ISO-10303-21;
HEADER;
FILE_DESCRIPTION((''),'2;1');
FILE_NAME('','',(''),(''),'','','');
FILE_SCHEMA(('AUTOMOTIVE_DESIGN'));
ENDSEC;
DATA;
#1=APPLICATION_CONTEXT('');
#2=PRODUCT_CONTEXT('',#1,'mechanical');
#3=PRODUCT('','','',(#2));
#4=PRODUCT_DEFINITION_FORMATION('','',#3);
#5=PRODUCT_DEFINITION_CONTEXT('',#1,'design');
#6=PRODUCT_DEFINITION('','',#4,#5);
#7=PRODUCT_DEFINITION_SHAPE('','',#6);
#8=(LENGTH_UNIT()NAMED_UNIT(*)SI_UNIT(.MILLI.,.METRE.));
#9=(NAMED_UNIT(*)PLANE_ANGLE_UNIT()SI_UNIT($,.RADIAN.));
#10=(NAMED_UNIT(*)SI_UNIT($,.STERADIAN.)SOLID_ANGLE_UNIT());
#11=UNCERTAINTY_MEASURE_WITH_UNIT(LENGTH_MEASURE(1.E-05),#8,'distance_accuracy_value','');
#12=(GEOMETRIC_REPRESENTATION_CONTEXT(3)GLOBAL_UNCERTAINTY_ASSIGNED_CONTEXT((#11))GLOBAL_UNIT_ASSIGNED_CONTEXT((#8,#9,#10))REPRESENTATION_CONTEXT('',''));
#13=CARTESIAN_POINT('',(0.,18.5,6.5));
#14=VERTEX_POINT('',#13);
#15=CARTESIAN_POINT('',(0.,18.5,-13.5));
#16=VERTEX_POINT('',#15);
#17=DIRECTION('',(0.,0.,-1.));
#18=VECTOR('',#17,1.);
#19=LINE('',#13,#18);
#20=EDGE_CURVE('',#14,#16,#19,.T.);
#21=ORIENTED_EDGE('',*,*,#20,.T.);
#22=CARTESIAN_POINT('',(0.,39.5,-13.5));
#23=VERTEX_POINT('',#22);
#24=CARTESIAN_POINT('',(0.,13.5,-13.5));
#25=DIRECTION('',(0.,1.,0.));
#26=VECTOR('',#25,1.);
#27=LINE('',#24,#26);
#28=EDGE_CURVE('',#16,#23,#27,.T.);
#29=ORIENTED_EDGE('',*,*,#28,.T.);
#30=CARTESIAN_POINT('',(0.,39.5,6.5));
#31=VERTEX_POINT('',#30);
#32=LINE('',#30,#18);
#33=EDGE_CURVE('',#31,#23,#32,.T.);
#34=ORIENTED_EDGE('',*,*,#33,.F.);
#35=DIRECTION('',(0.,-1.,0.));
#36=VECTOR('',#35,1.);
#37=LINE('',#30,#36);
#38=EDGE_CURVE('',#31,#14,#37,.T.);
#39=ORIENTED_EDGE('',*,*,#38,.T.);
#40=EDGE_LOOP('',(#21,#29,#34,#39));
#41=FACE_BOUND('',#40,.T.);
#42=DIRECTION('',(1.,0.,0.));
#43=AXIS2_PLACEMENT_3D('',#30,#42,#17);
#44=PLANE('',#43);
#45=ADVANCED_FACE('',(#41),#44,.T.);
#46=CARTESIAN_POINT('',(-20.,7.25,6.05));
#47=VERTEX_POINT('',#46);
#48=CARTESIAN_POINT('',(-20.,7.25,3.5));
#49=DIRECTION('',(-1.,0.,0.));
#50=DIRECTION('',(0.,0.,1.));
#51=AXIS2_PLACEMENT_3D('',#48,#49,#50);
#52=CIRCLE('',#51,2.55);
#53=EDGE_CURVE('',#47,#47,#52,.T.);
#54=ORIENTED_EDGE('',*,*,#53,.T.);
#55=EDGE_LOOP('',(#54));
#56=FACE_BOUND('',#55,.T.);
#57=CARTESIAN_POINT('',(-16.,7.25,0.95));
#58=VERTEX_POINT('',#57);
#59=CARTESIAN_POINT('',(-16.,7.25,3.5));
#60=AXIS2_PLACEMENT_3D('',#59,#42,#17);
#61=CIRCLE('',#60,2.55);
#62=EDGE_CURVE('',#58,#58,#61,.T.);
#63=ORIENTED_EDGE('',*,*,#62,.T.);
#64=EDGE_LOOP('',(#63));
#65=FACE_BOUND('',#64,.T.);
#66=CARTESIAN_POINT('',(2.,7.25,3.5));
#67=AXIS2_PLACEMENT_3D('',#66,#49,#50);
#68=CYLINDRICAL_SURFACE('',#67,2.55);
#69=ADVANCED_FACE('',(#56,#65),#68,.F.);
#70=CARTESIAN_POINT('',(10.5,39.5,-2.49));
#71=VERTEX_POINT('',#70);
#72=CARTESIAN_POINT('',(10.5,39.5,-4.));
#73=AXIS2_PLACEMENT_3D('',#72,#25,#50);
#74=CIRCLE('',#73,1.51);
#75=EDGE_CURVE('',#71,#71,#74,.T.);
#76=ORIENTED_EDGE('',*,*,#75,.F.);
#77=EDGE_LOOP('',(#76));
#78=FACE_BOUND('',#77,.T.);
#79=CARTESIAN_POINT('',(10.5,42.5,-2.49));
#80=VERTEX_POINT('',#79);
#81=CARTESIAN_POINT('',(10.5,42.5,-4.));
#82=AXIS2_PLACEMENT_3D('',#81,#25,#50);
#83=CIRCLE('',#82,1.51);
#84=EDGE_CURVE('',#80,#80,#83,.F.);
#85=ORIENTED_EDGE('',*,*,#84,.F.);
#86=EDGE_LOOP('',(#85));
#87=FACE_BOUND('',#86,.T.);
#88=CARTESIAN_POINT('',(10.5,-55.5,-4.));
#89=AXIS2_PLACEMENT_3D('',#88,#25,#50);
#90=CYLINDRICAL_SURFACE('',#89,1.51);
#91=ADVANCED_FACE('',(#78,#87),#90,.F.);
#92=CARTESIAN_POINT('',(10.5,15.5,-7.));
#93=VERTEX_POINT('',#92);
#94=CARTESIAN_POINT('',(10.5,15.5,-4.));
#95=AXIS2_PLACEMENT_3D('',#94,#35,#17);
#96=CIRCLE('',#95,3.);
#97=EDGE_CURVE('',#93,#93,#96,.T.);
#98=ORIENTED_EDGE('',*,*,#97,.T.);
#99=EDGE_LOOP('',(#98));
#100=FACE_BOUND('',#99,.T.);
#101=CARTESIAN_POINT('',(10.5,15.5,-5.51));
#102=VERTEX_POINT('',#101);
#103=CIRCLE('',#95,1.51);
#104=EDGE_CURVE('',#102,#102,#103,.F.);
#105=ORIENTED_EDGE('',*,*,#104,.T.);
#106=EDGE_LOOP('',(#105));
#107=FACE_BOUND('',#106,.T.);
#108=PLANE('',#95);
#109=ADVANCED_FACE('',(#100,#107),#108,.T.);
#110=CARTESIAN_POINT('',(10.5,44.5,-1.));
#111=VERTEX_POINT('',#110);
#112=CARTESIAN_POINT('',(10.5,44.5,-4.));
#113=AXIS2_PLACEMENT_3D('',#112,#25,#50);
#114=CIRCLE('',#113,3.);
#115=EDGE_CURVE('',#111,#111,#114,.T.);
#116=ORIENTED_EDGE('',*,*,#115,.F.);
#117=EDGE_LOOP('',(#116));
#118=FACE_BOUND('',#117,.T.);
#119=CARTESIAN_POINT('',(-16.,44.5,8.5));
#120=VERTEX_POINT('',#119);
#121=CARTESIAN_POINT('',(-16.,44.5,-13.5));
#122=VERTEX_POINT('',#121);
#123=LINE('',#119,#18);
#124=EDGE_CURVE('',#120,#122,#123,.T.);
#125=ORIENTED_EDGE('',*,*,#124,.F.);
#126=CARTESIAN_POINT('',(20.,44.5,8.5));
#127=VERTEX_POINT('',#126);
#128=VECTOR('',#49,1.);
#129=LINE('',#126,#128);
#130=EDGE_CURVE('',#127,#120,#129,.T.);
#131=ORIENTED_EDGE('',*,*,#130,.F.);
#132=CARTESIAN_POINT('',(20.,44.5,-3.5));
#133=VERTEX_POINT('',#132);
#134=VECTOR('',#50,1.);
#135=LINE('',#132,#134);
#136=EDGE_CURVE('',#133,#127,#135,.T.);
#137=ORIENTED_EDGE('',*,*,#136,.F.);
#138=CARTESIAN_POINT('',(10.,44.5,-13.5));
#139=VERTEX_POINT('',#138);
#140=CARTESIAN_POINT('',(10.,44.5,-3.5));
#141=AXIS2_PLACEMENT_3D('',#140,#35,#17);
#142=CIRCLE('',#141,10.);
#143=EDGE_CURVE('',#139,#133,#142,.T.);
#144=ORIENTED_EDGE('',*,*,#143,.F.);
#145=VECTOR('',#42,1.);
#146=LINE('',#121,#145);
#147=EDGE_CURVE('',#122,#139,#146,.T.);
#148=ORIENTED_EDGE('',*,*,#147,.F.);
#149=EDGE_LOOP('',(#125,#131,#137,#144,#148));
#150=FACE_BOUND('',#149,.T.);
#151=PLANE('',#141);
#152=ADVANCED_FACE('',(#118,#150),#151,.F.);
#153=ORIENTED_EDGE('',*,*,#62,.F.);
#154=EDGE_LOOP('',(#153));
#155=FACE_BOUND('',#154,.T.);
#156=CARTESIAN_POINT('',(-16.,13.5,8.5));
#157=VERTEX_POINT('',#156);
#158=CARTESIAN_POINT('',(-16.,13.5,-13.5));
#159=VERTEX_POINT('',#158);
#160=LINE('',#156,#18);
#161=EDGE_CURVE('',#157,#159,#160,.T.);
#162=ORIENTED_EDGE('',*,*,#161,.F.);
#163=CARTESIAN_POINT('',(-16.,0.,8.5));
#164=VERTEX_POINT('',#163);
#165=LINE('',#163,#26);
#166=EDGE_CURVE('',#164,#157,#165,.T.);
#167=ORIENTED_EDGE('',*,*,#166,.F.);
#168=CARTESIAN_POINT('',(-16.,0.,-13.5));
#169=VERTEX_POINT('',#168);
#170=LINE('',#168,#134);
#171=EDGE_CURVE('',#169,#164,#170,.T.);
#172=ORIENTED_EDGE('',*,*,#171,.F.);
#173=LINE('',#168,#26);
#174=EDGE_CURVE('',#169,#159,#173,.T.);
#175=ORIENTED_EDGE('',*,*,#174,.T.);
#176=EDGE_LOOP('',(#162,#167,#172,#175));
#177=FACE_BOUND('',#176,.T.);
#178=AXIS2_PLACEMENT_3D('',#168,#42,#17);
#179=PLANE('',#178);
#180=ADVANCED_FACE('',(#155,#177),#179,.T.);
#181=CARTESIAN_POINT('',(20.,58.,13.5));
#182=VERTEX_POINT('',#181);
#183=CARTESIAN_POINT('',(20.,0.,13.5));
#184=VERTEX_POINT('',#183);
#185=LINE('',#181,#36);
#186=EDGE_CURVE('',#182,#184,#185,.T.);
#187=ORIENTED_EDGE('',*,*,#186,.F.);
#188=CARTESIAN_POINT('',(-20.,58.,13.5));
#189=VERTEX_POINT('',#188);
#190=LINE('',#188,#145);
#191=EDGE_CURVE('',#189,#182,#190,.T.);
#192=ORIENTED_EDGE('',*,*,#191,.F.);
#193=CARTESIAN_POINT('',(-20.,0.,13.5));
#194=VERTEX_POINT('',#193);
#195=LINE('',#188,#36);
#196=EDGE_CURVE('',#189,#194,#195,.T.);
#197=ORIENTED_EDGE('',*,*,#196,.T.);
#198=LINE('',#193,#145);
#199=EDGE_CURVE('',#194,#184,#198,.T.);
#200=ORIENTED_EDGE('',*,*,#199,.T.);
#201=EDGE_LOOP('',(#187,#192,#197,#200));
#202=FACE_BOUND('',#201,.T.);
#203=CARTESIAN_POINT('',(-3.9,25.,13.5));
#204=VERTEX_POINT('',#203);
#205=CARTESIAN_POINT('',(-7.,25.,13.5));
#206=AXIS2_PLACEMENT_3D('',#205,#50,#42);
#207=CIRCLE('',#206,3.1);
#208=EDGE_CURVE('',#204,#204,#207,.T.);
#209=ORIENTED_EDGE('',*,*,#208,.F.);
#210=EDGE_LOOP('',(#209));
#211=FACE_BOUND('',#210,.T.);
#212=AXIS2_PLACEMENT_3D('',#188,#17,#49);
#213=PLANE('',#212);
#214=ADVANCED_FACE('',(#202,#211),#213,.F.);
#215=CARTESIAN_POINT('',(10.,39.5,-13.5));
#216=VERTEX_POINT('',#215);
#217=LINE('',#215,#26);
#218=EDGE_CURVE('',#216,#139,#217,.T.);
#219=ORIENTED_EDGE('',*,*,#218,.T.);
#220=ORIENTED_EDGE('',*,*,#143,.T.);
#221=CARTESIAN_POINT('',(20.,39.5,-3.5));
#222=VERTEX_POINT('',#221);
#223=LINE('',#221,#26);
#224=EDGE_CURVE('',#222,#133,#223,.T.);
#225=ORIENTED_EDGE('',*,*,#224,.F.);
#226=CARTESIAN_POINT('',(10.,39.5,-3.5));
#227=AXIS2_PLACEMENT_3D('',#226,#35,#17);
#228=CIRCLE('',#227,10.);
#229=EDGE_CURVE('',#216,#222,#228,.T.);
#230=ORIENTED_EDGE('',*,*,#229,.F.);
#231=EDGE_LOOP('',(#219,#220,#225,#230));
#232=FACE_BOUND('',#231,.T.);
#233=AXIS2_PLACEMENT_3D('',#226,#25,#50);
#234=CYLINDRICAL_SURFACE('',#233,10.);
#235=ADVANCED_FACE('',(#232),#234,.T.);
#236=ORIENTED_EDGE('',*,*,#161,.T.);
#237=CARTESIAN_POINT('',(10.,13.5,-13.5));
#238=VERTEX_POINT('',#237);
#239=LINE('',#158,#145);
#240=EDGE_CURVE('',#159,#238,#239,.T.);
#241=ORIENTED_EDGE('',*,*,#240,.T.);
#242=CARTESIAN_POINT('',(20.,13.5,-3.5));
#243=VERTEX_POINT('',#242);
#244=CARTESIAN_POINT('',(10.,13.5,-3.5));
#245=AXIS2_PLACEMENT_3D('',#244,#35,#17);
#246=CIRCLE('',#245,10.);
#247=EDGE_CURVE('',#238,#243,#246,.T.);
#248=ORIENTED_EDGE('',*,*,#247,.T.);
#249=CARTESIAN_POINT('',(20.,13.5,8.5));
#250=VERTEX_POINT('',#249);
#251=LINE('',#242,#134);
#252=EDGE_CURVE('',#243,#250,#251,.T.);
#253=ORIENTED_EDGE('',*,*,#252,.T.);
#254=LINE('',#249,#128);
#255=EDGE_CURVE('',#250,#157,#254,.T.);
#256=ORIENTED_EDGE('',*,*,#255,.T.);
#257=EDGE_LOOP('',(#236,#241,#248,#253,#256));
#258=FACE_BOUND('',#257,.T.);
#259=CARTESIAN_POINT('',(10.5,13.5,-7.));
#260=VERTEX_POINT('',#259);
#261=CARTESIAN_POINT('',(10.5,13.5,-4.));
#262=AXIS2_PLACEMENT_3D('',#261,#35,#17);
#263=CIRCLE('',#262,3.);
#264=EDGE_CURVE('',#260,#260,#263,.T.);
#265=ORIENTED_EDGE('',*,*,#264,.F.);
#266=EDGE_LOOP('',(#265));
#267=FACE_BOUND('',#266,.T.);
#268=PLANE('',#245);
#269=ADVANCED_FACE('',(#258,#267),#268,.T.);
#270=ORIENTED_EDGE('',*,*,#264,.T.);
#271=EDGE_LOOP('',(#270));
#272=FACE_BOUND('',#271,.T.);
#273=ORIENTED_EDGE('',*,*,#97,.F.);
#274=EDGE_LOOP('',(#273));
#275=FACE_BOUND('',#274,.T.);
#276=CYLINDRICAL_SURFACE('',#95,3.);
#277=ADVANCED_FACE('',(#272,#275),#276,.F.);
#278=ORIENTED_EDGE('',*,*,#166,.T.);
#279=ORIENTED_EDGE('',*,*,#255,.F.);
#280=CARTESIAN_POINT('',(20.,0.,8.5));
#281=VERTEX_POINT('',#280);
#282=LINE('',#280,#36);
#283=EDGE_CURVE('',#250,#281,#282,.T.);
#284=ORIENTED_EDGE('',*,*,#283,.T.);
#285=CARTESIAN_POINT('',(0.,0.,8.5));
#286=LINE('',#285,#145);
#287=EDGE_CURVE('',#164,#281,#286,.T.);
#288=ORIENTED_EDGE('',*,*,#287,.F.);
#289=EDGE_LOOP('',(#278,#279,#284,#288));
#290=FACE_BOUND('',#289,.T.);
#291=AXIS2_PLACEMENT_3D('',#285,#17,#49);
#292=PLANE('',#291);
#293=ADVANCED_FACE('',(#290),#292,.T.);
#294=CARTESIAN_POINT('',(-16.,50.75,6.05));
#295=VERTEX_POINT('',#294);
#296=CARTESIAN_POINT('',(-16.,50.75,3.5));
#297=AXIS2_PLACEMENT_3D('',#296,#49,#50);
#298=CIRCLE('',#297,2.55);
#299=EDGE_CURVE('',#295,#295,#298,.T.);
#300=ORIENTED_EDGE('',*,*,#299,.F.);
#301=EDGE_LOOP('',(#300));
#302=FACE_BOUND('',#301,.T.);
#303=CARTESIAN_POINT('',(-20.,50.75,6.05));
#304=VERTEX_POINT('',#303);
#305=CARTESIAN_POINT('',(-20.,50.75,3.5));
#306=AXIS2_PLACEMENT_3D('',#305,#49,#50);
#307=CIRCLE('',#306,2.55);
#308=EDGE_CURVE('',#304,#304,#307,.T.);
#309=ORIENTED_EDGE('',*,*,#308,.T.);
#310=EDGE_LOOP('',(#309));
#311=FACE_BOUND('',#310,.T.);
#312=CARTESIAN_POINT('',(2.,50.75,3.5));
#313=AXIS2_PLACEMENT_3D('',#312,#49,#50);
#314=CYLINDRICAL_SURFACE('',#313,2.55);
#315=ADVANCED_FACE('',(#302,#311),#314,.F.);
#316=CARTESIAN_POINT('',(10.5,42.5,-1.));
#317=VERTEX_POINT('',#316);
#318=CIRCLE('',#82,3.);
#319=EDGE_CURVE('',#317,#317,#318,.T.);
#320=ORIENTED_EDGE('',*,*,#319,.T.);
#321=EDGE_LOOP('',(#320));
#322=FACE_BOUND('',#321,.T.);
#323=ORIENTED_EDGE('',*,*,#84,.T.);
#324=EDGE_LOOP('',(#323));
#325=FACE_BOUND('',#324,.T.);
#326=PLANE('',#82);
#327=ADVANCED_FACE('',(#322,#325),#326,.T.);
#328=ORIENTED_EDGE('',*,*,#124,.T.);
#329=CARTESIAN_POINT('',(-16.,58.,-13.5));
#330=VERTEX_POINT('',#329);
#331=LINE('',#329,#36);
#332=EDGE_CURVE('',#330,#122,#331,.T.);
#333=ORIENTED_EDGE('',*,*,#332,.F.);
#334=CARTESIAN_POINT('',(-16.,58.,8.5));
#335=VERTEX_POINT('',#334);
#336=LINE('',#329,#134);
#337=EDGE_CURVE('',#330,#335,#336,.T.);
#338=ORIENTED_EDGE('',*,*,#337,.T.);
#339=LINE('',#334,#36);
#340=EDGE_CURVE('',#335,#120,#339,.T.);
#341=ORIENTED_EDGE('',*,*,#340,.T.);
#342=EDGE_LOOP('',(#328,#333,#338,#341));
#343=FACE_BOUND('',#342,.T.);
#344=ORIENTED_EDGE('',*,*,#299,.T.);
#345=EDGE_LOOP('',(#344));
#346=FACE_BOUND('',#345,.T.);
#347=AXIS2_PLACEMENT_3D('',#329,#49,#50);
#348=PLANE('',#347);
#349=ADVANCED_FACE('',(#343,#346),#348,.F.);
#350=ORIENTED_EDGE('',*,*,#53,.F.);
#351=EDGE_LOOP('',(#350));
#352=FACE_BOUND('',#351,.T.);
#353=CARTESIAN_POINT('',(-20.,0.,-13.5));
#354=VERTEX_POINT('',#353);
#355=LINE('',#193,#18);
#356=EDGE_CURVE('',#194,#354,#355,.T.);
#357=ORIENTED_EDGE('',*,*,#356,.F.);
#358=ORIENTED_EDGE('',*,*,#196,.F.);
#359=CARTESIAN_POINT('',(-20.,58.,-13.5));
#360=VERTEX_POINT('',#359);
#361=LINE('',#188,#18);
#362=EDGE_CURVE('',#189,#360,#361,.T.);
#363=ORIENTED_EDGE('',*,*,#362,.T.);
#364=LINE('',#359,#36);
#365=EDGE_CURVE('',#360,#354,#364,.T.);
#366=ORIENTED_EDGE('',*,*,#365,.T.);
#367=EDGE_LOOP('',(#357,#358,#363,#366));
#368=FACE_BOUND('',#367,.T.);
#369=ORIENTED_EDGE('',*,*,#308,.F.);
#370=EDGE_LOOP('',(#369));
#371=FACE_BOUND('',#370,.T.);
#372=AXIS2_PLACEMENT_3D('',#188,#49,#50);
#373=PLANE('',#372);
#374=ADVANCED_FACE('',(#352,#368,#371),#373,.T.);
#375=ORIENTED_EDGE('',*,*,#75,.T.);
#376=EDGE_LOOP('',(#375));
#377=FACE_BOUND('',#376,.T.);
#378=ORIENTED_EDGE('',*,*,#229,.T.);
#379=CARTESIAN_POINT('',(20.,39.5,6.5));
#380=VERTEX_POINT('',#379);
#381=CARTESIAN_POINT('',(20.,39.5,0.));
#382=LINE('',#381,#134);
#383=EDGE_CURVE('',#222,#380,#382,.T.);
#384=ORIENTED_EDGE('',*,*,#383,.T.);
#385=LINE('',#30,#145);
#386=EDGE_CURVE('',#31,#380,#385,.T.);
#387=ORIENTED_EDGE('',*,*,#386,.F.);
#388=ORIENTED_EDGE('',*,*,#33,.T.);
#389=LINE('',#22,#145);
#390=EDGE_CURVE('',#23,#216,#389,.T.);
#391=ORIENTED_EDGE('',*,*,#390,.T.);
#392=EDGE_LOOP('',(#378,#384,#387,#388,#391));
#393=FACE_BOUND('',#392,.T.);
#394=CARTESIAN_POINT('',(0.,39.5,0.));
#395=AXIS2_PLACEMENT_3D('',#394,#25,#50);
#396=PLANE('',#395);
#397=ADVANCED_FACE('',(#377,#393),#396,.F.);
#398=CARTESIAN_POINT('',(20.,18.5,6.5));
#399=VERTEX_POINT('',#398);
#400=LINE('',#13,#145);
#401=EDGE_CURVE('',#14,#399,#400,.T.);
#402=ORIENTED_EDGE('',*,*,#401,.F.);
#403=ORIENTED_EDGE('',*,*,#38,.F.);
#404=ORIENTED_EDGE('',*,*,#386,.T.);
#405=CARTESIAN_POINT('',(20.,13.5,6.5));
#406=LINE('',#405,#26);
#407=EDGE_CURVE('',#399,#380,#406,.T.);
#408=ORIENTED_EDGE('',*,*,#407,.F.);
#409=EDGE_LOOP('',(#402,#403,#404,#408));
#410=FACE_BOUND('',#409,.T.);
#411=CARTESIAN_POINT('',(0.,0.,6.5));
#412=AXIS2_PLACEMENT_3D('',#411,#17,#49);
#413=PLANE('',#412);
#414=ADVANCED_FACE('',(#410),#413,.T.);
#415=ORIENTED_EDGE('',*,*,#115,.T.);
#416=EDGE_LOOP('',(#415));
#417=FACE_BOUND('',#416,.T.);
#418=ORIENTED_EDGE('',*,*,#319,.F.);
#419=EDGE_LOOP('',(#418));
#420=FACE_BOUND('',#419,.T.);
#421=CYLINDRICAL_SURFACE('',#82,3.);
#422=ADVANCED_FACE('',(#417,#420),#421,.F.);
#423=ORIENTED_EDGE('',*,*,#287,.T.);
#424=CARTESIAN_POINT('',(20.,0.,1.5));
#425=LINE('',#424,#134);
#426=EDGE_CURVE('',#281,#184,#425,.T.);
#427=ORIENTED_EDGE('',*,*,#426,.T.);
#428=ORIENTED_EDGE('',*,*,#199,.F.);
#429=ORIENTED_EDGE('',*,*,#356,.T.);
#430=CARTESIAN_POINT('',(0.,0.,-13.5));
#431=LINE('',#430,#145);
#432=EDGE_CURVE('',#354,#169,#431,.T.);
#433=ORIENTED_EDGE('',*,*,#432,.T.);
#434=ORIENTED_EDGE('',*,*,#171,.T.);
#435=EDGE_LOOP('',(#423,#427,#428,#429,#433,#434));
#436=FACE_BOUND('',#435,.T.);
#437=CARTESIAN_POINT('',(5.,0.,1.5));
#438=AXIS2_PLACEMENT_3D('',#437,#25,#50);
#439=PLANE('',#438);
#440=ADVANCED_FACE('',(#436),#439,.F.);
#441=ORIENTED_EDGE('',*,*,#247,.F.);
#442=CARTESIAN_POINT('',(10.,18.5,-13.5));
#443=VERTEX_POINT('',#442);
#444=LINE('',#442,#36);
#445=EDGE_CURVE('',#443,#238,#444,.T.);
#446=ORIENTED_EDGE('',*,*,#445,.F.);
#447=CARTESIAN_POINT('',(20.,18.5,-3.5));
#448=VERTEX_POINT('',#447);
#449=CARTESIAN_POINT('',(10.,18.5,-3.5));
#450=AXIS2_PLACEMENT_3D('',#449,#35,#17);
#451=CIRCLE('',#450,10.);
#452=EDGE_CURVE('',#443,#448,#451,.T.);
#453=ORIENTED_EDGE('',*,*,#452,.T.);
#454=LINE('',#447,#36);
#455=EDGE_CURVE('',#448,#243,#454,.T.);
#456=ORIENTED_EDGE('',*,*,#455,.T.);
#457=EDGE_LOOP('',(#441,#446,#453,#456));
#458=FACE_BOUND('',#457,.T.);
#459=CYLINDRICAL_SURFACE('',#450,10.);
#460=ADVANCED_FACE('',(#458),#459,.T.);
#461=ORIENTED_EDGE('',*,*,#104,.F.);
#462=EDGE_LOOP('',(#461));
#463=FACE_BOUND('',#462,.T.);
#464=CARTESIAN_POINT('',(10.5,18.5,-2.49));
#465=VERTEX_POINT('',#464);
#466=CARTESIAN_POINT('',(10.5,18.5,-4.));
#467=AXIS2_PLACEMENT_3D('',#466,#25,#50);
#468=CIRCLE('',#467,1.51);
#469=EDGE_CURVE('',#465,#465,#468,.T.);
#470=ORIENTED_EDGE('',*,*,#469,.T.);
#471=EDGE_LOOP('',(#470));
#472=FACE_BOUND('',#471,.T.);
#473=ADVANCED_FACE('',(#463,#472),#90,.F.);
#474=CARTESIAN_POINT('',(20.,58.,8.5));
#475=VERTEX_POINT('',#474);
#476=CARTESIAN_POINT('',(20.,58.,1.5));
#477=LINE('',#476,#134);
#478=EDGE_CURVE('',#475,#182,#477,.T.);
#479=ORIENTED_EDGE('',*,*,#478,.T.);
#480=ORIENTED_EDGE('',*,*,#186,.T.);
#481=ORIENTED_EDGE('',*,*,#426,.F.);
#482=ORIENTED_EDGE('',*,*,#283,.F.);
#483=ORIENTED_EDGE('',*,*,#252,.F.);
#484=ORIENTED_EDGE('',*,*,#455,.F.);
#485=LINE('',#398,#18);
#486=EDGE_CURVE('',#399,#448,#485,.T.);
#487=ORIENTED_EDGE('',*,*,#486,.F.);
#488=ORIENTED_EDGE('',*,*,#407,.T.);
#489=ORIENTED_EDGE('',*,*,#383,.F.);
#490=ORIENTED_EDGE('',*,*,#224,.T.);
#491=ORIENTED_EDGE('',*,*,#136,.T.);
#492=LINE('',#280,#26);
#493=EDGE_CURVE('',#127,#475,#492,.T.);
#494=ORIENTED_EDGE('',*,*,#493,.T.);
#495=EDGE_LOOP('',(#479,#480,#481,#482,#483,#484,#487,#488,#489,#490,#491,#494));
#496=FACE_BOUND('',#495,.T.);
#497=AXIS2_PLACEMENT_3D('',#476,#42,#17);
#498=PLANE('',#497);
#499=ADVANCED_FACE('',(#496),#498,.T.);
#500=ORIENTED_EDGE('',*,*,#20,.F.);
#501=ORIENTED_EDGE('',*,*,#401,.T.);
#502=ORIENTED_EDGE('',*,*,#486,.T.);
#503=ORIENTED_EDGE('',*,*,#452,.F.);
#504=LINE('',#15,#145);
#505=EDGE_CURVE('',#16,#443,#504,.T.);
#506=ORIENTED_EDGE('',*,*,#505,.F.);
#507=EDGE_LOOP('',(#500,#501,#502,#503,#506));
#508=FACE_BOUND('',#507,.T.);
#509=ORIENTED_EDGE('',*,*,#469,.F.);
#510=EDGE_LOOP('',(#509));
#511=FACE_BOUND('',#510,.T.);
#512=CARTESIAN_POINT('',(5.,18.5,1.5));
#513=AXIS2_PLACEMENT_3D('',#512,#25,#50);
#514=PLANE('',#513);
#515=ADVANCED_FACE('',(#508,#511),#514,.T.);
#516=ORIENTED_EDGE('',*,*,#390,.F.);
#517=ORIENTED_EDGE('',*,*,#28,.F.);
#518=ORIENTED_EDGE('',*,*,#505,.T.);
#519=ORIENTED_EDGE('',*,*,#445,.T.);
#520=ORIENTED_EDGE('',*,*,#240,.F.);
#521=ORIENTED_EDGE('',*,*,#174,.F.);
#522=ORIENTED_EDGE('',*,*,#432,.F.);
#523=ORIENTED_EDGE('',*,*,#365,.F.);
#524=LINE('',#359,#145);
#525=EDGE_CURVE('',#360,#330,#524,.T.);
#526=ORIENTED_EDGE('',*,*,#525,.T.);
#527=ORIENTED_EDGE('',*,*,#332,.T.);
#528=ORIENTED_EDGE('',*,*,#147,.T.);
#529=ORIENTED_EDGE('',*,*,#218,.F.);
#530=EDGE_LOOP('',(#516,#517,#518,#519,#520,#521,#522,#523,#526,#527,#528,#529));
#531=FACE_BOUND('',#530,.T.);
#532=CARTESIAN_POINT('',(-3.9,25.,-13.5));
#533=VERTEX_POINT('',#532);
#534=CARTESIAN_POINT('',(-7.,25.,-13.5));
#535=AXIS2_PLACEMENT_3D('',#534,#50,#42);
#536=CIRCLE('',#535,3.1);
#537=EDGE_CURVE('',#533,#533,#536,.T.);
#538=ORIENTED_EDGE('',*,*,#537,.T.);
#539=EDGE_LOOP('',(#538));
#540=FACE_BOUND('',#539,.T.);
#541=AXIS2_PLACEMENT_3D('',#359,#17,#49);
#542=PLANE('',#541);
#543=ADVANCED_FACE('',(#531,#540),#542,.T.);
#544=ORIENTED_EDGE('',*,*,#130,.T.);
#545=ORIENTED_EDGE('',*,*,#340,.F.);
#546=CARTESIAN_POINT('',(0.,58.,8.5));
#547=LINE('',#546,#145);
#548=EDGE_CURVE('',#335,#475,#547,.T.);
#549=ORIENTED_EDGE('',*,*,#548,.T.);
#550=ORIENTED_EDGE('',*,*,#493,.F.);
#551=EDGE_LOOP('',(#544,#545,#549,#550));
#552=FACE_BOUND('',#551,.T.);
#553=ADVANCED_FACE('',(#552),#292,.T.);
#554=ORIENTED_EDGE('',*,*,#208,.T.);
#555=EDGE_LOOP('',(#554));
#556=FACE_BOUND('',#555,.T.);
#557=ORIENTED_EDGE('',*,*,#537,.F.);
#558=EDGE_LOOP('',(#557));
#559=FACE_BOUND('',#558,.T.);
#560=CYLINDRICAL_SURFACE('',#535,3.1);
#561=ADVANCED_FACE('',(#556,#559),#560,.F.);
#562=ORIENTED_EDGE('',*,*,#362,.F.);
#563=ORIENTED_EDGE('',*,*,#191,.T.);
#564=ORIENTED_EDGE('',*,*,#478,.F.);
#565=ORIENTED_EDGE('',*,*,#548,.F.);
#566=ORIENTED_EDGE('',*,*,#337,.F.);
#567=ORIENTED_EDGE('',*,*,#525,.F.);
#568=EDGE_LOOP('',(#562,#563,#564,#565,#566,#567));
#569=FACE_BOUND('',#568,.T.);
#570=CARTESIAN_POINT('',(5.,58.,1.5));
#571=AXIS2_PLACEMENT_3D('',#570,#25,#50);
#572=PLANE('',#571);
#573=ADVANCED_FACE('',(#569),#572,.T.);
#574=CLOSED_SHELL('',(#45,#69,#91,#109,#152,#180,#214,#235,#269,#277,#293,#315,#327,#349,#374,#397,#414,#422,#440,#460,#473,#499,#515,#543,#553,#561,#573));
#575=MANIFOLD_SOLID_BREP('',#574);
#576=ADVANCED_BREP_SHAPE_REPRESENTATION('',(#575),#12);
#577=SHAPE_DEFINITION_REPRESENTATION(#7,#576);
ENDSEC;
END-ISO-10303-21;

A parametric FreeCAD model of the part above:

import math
import FreeCAD as App
import Part
import Sketcher

V = App.Vector

doc = App.newDocument("Part")
body = doc.addObject("PartDesign::Body", "Body")

# Sketch on XZ plane
sketch1 = body.newObject("Sketcher::SketchObject", "Sketch")
sketch1.AttachmentSupport = (doc.getObject("XZ_Plane"), [""])
sketch1.MapMode = "FlatFace"
sketch1.addGeometry([
    Part.LineSegment(V(5, -14, 0), V(-20, -14, 0)),  # 0
    Part.LineSegment(V(-20, -14, 0), V(-20, 14, 0)),  # 1
    Part.LineSegment(V(-20, 14, 0), V(20, 14, 0)),  # 2
    Part.LineSegment(V(20, 14, 0), V(20, 2, 0)),  # 3
    Part.ArcOfCircle(Part.Circle(V(5, 1, 0), V(0, 0, 1), 15), math.radians(-90), math.radians(0)),  # 4
], False)
sketch1.addConstraint([
    Sketcher.Constraint("Coincident", 0, 2, 1, 1),
    Sketcher.Constraint("Coincident", 1, 2, 2, 1),
    Sketcher.Constraint("Coincident", 2, 2, 3, 1),
    Sketcher.Constraint("Tangent", 3, 2, 4, 2),
    Sketcher.Constraint("Tangent", 4, 1, 0, 1),
    Sketcher.Constraint("Horizontal", 0),
    Sketcher.Constraint("Vertical", 1),
    Sketcher.Constraint("Horizontal", 2),
    Sketcher.Constraint("Vertical", 3),
    Sketcher.Constraint("Symmetric", 0, 2, 2, 2, -1, 1),
    Sketcher.Constraint("Radius", 4, 15.0),
    Sketcher.Constraint("DistanceX", 0, 2, 0, 1, 25.0),
    Sketcher.Constraint("DistanceY", 1, 1, 1, 2, 27.0),
])
pad1 = body.newObject("PartDesign::Pad", "Pad")
pad1.Profile = sketch1
pad1.Length = 58
pad1.Reversed = True

# Sketch on XY plane
sketch2 = body.newObject("Sketcher::SketchObject", "Sketch001")
sketch2.AttachmentSupport = (doc.getObject("XY_Plane"), [""])
sketch2.MapMode = "FlatFace"
sketch2.AttachmentOffset = App.Placement(V(0, 0, 13.5), App.Rotation())
sketch2.addGeometry(Part.Circle(V(-7, 33, 0), V(0, 0, 1), 3), False)
sketch2.addConstraint([
    Sketcher.Constraint("Diameter", 0, 6.0),
    Sketcher.Constraint("DistanceX", 0, 3, -1, 1, 7.0),
    Sketcher.Constraint("DistanceY", -1, 1, 0, 3, 33.0),
])
pocket1 = body.newObject("PartDesign::Pocket", "Pocket")
pocket1.Profile = sketch2
pocket1.Length = 58

# Sketch on XY plane
sketch3 = body.newObject("Sketcher::SketchObject", "Sketch002")
sketch3.AttachmentSupport = (doc.getObject("XY_Plane"), [""])
sketch3.MapMode = "FlatFace"
sketch3.AttachmentOffset = App.Placement(V(0, 0, -13.5), App.Rotation())
sketch3.addGeometry([
    Part.LineSegment(V(20, 58, 0), V(20, 44, 0)),  # 0
    Part.LineSegment(V(20, 44, 0), V(-20, 44, 0)),  # 1
    Part.LineSegment(V(-20, 44, 0), V(-20, 58, 0)),  # 2
    Part.LineSegment(V(-20, 58, 0), V(20, 58, 0)),  # 3
    Part.LineSegment(V(20, 14, 0), V(20, 0, 0)),  # 4
    Part.LineSegment(V(20, 0, 0), V(-20, 0, 0)),  # 5
    Part.LineSegment(V(-20, 0, 0), V(-20, 14, 0)),  # 6
    Part.LineSegment(V(-20, 14, 0), V(20, 14, 0)),  # 7
], False)
sketch3.addConstraint([
    Sketcher.Constraint("Coincident", 0, 2, 1, 1),
    Sketcher.Constraint("Coincident", 1, 2, 2, 1),
    Sketcher.Constraint("Coincident", 2, 2, 3, 1),
    Sketcher.Constraint("Coincident", 3, 2, 0, 1),
    Sketcher.Constraint("Coincident", 4, 2, 5, 1),
    Sketcher.Constraint("Coincident", 5, 2, 6, 1),
    Sketcher.Constraint("Coincident", 6, 2, 7, 1),
    Sketcher.Constraint("Coincident", 7, 2, 4, 1),
    Sketcher.Constraint("Vertical", 0),
    Sketcher.Constraint("Horizontal", 1),
    Sketcher.Constraint("Vertical", 2),
    Sketcher.Constraint("Horizontal", 3),
    Sketcher.Constraint("Vertical", 4),
    Sketcher.Constraint("Horizontal", 5),
    Sketcher.Constraint("Vertical", 6),
    Sketcher.Constraint("Horizontal", 7),
    Sketcher.Constraint("Symmetric", 4, 2, 5, 2, -1, 1),
    Sketcher.Constraint("Vertical", 3, 2, 4, 2),
    Sketcher.Constraint("Vertical", 2, 2, 5, 2),
    Sketcher.Constraint("Equal", 2, 4),
    Sketcher.Constraint("DistanceX", 1, 2, 1, 1, 40.0),
    Sketcher.Constraint("DistanceY", 0, 2, 0, 1, 14.5),
    Sketcher.Constraint("DistanceY", -1, 1, 2, 2, 58.0),
])
pocket2 = body.newObject("PartDesign::Pocket", "Pocket001")
pocket2.Profile = sketch3
pocket2.Length = 22
pocket2.Reversed = True

# Sketch on XY plane
sketch4 = body.newObject("Sketcher::SketchObject", "Sketch003")
sketch4.AttachmentSupport = (doc.getObject("XY_Plane"), [""])
sketch4.MapMode = "FlatFace"
sketch4.AttachmentOffset = App.Placement(V(0, 0, 8.5), App.Rotation())
sketch4.addGeometry([
    Part.LineSegment(V(-16, 14.5, 0), V(-16, 0, 0)),  # 0
    Part.LineSegment(V(-16, 0, 0), V(-20, 0, 0)),  # 1
    Part.LineSegment(V(-20, 0, 0), V(-20, 14.5, 0)),  # 2
    Part.LineSegment(V(-20, 14.5, 0), V(-16, 14.5, 0)),  # 3
    Part.LineSegment(V(-16, 58, 0), V(-16, 43.5, 0)),  # 4
    Part.LineSegment(V(-16, 43.5, 0), V(-20, 43.5, 0)),  # 5
    Part.LineSegment(V(-20, 43.5, 0), V(-20, 58, 0)),  # 6
    Part.LineSegment(V(-20, 58, 0), V(-16, 58, 0)),  # 7
], False)
sketch4.addConstraint([
    Sketcher.Constraint("Coincident", 0, 2, 1, 1),
    Sketcher.Constraint("Coincident", 1, 2, 2, 1),
    Sketcher.Constraint("Coincident", 2, 2, 3, 1),
    Sketcher.Constraint("Coincident", 3, 2, 0, 1),
    Sketcher.Constraint("Coincident", 4, 2, 5, 1),
    Sketcher.Constraint("Coincident", 5, 2, 6, 1),
    Sketcher.Constraint("Coincident", 6, 2, 7, 1),
    Sketcher.Constraint("Coincident", 7, 2, 4, 1),
    Sketcher.Constraint("Vertical", 0),
    Sketcher.Constraint("Horizontal", 1),
    Sketcher.Constraint("Vertical", 2),
    Sketcher.Constraint("Horizontal", 3),
    Sketcher.Constraint("Vertical", 4),
    Sketcher.Constraint("Horizontal", 5),
    Sketcher.Constraint("Vertical", 6),
    Sketcher.Constraint("Horizontal", 7),
    Sketcher.Constraint("PointOnObject", 0, 2, -1),
    Sketcher.Constraint("Vertical", 3, 2, 4, 2),
    Sketcher.Constraint("Vertical", 2, 2, 5, 2),
    Sketcher.Constraint("Equal", 2, 4),
    Sketcher.Constraint("DistanceX", 1, 2, 1, 1, 4.0),
    Sketcher.Constraint("DistanceY", 0, 2, 0, 1, 14.5),
    Sketcher.Constraint("DistanceX", 0, 2, -1, 1, 16.0),
    Sketcher.Constraint("DistanceY", -1, 1, 6, 2, 58.0),
])
pad2 = body.newObject("PartDesign::Pad", "Pad001")
pad2.Profile = sketch4
pad2.Length = 22
pad2.Reversed = True

# Sketch on YZ plane
sketch5 = body.newObject("Sketcher::SketchObject", "Sketch004")
sketch5.AttachmentSupport = (doc.getObject("YZ_Plane"), [""])
sketch5.MapMode = "FlatFace"
sketch5.AttachmentOffset = App.Placement(V(0, 0, -20), App.Rotation())
sketch5.addGeometry([
    Part.ArcOfCircle(Part.Circle(V(50.8, 3.5, 0), V(0, 0, 1), 2.5), math.radians(0), math.radians(90)),  # 0
    Part.ArcOfCircle(Part.Circle(V(50.8, 3.5, 0), V(0, 0, 1), 2.5), math.radians(180), math.radians(360)),  # 1
    Part.ArcOfCircle(Part.Circle(V(50.8, 3.5, 0), V(0, 0, 1), 2.5), math.radians(90), math.radians(180)),  # 2
    Part.ArcOfCircle(Part.Circle(V(7.2, 3.5, 0), V(0, 0, 1), 2.5), math.radians(180), math.radians(360)),  # 3
    Part.ArcOfCircle(Part.Circle(V(7.2, 3.5, 0), V(0, 0, 1), 2.5), math.radians(90), math.radians(180)),  # 4
    Part.ArcOfCircle(Part.Circle(V(7.2, 3.5, 0), V(0, 0, 1), 2.5), math.radians(0), math.radians(90)),  # 5
], False)
sketch5.addConstraint([
    Sketcher.Constraint("Tangent", 0, 1, 1, 2),
    Sketcher.Constraint("Tangent", 1, 1, 2, 2),
    Sketcher.Constraint("Tangent", 2, 1, 0, 2),
    Sketcher.Constraint("Tangent", 3, 1, 4, 2),
    Sketcher.Constraint("Tangent", 4, 1, 5, 2),
    Sketcher.Constraint("Tangent", 5, 1, 3, 2),
    Sketcher.Constraint("Equal", 2, 3),
    Sketcher.Constraint("Horizontal", 2, 3, 3, 3),
    Sketcher.Constraint("Horizontal", 5, 3, 0, 1),
    Sketcher.Constraint("Horizontal", 0, 1, 1, 1),
    Sketcher.Constraint("Horizontal", 1, 1, 3, 1),
    Sketcher.Constraint("Horizontal", 3, 1, 5, 1),
    Sketcher.Constraint("Vertical", 1, 3, 2, 1),
    Sketcher.Constraint("Vertical", 5, 3, 4, 1),
    Sketcher.Constraint("Radius", 0, 2.55),
    Sketcher.Constraint("DistanceY", -1, 1, 0, 3, 3.5),
    Sketcher.Constraint("DistanceX", -1, 1, 0, 1, 53.3),
    Sketcher.Constraint("DistanceX", -1, 1, 3, 1, 4.7),
])
pocket3 = body.newObject("PartDesign::Pocket", "Pocket002")
pocket3.Profile = sketch5
pocket3.Length = 22
pocket3.Reversed = True

# Sketch on XZ plane
sketch6 = body.newObject("Sketcher::SketchObject", "Sketch005")
sketch6.AttachmentSupport = (doc.getObject("XZ_Plane"), [""])
sketch6.MapMode = "FlatFace"
sketch6.AttachmentOffset = App.Placement(V(0, 0, -13.5), App.Rotation())
sketch6.addGeometry([
    Part.LineSegment(V(20, 6, 0), V(20, -14, 0)),
    Part.LineSegment(V(20, -14, 0), V(0, -14, 0)),
    Part.ArcOfCircle(Part.Circle(V(20, -13, 0), V(0, 0, 1), 20), math.radians(90), math.radians(180)),
], False)
sketch6.addConstraint([
    Sketcher.Constraint("Coincident", 0, 2, 1, 1),
    Sketcher.Constraint("Coincident", 1, 2, 2, 2),
    Sketcher.Constraint("Coincident", 2, 1, 0, 1),
    Sketcher.Constraint("Vertical", 0),
    Sketcher.Constraint("Horizontal", 1),
    Sketcher.Constraint("Coincident", 0, 2, 2, 3),
    Sketcher.Constraint("PointOnObject", 1, 2, -2),
    Sketcher.Constraint("Radius", 2, 20.0),
    Sketcher.Constraint("DistanceY", 2, 3, -1, 1, 13.5),
])
pocket4 = body.newObject("PartDesign::Pocket", "Pocket003")
pocket4.Profile = sketch6
pocket4.Length = 30

# Sketch on XZ plane
sketch7 = body.newObject("Sketcher::SketchObject", "Sketch006")
sketch7.AttachmentSupport = (doc.getObject("XZ_Plane"), [""])
sketch7.MapMode = "FlatFace"
sketch7.AttachmentOffset = App.Placement(V(0, 0, -39.5), App.Rotation())
sketch7.addGeometry([
    Part.LineSegment(V(5, -14, 0), V(0, -14, 0)),
    Part.ArcOfCircle(Part.Circle(V(20, -13, 0), V(0, 0, 1), 20), math.radians(90), math.radians(180)),
    Part.LineSegment(V(20, 6, 0), V(20, 2, 0)),
    Part.ArcOfCircle(Part.Circle(V(5, 1, 0), V(0, 0, 1), 15), math.radians(-90), math.radians(0)),
], False)
sketch7.addConstraint([
    Sketcher.Constraint("Coincident", 0, 2, 1, 2),
    Sketcher.Constraint("Coincident", 1, 1, 2, 1),
    Sketcher.Constraint("Tangent", 2, 2, 3, 2),
    Sketcher.Constraint("Tangent", 3, 1, 0, 1),
    Sketcher.Constraint("Horizontal", 0),
    Sketcher.Constraint("Vertical", 2),
    Sketcher.Constraint("PointOnObject", 0, 2, -2),
    Sketcher.Constraint("Horizontal", 1, 3, 0, 2),
    Sketcher.Constraint("Equal", 0, 2),
    Sketcher.Constraint("Radius", 1, 20.0),
    Sketcher.Constraint("Radius", 3, 15.0),
    Sketcher.Constraint("DistanceY", 1, 3, -1, 1, 13.5),
])
pad3 = body.newObject("PartDesign::Pad", "Pad002")
pad3.Profile = sketch7
pad3.Length = 4
pad3.Reversed = True

# Sketch on XZ plane
sketch8 = body.newObject("Sketcher::SketchObject", "Sketch007")
sketch8.AttachmentSupport = (doc.getObject("XZ_Plane"), [""])
sketch8.MapMode = "FlatFace"
sketch8.AttachmentOffset = App.Placement(V(0, 0, -14.5), App.Rotation())
sketch8.addGeometry([
    Part.LineSegment(V(0, -14, 0), V(5, -14, 0)),
    Part.ArcOfCircle(Part.Circle(V(5, 1, 0), V(0, 0, 1), 15), math.radians(-90), math.radians(0)),
    Part.LineSegment(V(20, 2, 0), V(20, 6, 0)),
    Part.ArcOfCircle(Part.Circle(V(20, -13, 0), V(0, 0, 1), 20), math.radians(90), math.radians(180)),
], False)
sketch8.addConstraint([
    Sketcher.Constraint("Tangent", 0, 2, 1, 1),
    Sketcher.Constraint("Tangent", 1, 2, 2, 1),
    Sketcher.Constraint("Coincident", 2, 2, 3, 1),
    Sketcher.Constraint("Coincident", 3, 2, 0, 1),
    Sketcher.Constraint("Horizontal", 0),
    Sketcher.Constraint("Vertical", 2),
    Sketcher.Constraint("PointOnObject", 3, 2, -2),
    Sketcher.Constraint("Horizontal", 3, 3, 0, 2),
    Sketcher.Constraint("Vertical", 3, 3, 1, 2),
    Sketcher.Constraint("Radius", 1, 15.0),
    Sketcher.Constraint("Radius", 3, 20.0),
    Sketcher.Constraint("DistanceY", -1, 1, 1, 3, 1.5),
])
pad4 = body.newObject("PartDesign::Pad", "Pad003")
pad4.Profile = sketch8
pad4.Length = 4
pad4.Reversed = True

# Sketch on XY plane
sketch9 = body.newObject("Sketcher::SketchObject", "Sketch008")
sketch9.AttachmentSupport = (doc.getObject("XY_Plane"), [""])
sketch9.MapMode = "FlatFace"
sketch9.AttachmentOffset = App.Placement(V(0, 0, 13.5), App.Rotation())
sketch9.addGeometry(Part.Circle(V(-7, 33, 0), V(0, 0, 1), 3), False)
sketch9.addConstraint([
    Sketcher.Constraint("Diameter", 0, 6.1),
    Sketcher.Constraint("DistanceX", 0, 3, -1, 1, 7.0),
    Sketcher.Constraint("DistanceY", -1, 1, 0, 3, 33.0),
])
pocket5 = body.newObject("PartDesign::Pocket", "Pocket004")
pocket5.Profile = sketch9
pocket5.Length = 50

# Sketch on XZ plane
sketch10 = body.newObject("Sketcher::SketchObject", "Sketch009")
sketch10.AttachmentSupport = (doc.getObject("XZ_Plane"), [""])
sketch10.MapMode = "FlatFace"
sketch10.AttachmentOffset = App.Placement(V(0, 0, -43.5), App.Rotation())
sketch10.addGeometry(Part.Circle(V(12.9, -6.4, 0), V(0, 0, 1), 1.5), False)
sketch10.addConstraint([
    Sketcher.Constraint("Diameter", 0, 3.02),
    Sketcher.Constraint("DistanceX", -1, 1, 0, 3, 12.928932),
    Sketcher.Constraint("DistanceY", 0, 3, -1, 1, 6.428932),
])
pocket6 = body.newObject("PartDesign::Pocket", "Pocket005")
pocket6.Profile = sketch10
pocket6.Length = 50
pocket6.Reversed = True

# Sketch on XZ plane
sketch11 = body.newObject("Sketcher::SketchObject", "Sketch010")
sketch11.AttachmentSupport = (doc.getObject("XZ_Plane"), [""])
sketch11.MapMode = "FlatFace"
sketch11.AttachmentOffset = App.Placement(V(0, 0, -39.5), App.Rotation())
sketch11.addGeometry([
    Part.LineSegment(V(10, -14, 0), V(5, -14, 0)),
    Part.ArcOfCircle(Part.Circle(V(5, 1, 0), V(0, 0, 1), 15), math.radians(-90), math.radians(0)),
    Part.LineSegment(V(20, 2, 0), V(20, -4, 0)),
    Part.ArcOfCircle(Part.Circle(V(10, -4, 0), V(0, 0, 1), 10), math.radians(-90), math.radians(0)),
], False)
sketch11.addConstraint([
    Sketcher.Constraint("Tangent", 0, 2, 1, 1),
    Sketcher.Constraint("Tangent", 1, 2, 2, 1),
    Sketcher.Constraint("Tangent", 2, 2, 3, 2),
    Sketcher.Constraint("Tangent", 3, 1, 0, 1),
    Sketcher.Constraint("Horizontal", 0),
    Sketcher.Constraint("Vertical", 2),
    Sketcher.Constraint("Radius", 1, 15.0),
    Sketcher.Constraint("Radius", 3, 10.0),
    Sketcher.Constraint("DistanceX", -1, 1, 1, 3, 5.0),
    Sketcher.Constraint("DistanceY", -1, 1, 1, 3, 1.5),
])
pad5 = body.newObject("PartDesign::Pad", "Pad004")
pad5.Profile = sketch11
pad5.Length = 4
pad5.Reversed = True

# Sketch on XZ plane
sketch12 = body.newObject("Sketcher::SketchObject", "Sketch011")
sketch12.AttachmentSupport = (doc.getObject("XZ_Plane"), [""])
sketch12.MapMode = "FlatFace"
sketch12.AttachmentOffset = App.Placement(V(0, 0, -44.5), App.Rotation())
sketch12.addGeometry([
    Part.LineSegment(V(20, 8.5, 0), V(20, -3.5, 0)),  # 0
    Part.ArcOfCircle(Part.Circle(V(10, -3.5, 0), V(0, 0, 1), 10), math.radians(-90), math.radians(0)),  # 1
    Part.LineSegment(V(10, -13.5, 0), V(-16, -13.5, 0)),  # 2
    Part.LineSegment(V(-16, -13.5, 0), V(-16, 8.5, 0)),  # 3
    Part.LineSegment(V(-16, 8.5, 0), V(20, 8.5, 0)),  # 4
    Part.Circle(V(12.9, -6.4, 0), V(0, 0, 1), 1.5),  # 5
], False)
sketch12.addConstraint([
    Sketcher.Constraint("Tangent", 0, 2, 1, 2),
    Sketcher.Constraint("Tangent", 1, 1, 2, 1),
    Sketcher.Constraint("Coincident", 2, 2, 3, 1),
    Sketcher.Constraint("Coincident", 3, 2, 4, 1),
    Sketcher.Constraint("Coincident", 4, 2, 0, 1),
    Sketcher.Constraint("Vertical", 0),
    Sketcher.Constraint("Horizontal", 2),
    Sketcher.Constraint("Vertical", 3),
    Sketcher.Constraint("Horizontal", 4),
    Sketcher.Constraint("Radius", 1, 10.0),
    Sketcher.Constraint("Diameter", 5, 3.02),
    Sketcher.Constraint("DistanceX", 2, 2, 2, 1, 26.0),
    Sketcher.Constraint("DistanceY", 0, 2, 0, 1, 12.0),
    Sketcher.Constraint("DistanceX", -1, 1, 1, 3, 10.0),
    Sketcher.Constraint("DistanceY", 1, 3, -1, 1, 3.5),
    Sketcher.Constraint("DistanceX", -1, 1, 5, 3, 12.928932),
    Sketcher.Constraint("DistanceY", 5, 3, -1, 1, 6.428932),
])
pad6 = body.newObject("PartDesign::Pad", "Pad005")
pad6.Profile = sketch12
pad6.Length = 1

# Sketch on XZ plane
sketch13 = body.newObject("Sketcher::SketchObject", "Sketch012")
sketch13.AttachmentSupport = (doc.getObject("XZ_Plane"), [""])
sketch13.MapMode = "FlatFace"
sketch13.AttachmentOffset = App.Placement(V(0, 0, -44.5), App.Rotation())
sketch13.addGeometry([
    Part.Circle(V(12.9, -6.4, 0), V(0, 0, 1), 3),
    Part.Circle(V(12.9, -6.4, 0), V(0, 0, 1), 1.5),
], False)
sketch13.addConstraint([
    Sketcher.Constraint("Coincident", 1, 3, 0, 3),
    Sketcher.Constraint("Diameter", 0, 6.0),
    Sketcher.Constraint("Diameter", 1, 3.02),
    Sketcher.Constraint("DistanceX", -1, 1, 0, 3, 12.928932),
    Sketcher.Constraint("DistanceY", 0, 3, -1, 1, 6.428932),
])
pocket7 = body.newObject("PartDesign::Pocket", "Pocket006")
pocket7.Profile = sketch13
pocket7.Length = 2
pocket7.Reversed = True

# Sketch on XZ plane
sketch14 = body.newObject("Sketcher::SketchObject", "Sketch013")
sketch14.AttachmentSupport = (doc.getObject("XZ_Plane"), [""])
sketch14.MapMode = "FlatFace"
sketch14.AttachmentOffset = App.Placement(V(0, 0, -14.5), App.Rotation())
sketch14.addGeometry([
    Part.LineSegment(V(5, -14, 0), V(10, -14, 0)),
    Part.ArcOfCircle(Part.Circle(V(10, -4, 0), V(0, 0, 1), 10), math.radians(-90), math.radians(0)),
    Part.LineSegment(V(20, -4, 0), V(20, 2, 0)),
    Part.ArcOfCircle(Part.Circle(V(5, 1, 0), V(0, 0, 1), 15), math.radians(-90), math.radians(0)),
], False)
sketch14.addConstraint([
    Sketcher.Constraint("Tangent", 0, 2, 1, 1),
    Sketcher.Constraint("Tangent", 1, 2, 2, 1),
    Sketcher.Constraint("Tangent", 2, 2, 3, 2),
    Sketcher.Constraint("Tangent", 3, 1, 0, 1),
    Sketcher.Constraint("Horizontal", 0),
    Sketcher.Constraint("Vertical", 2),
    Sketcher.Constraint("Radius", 1, 10.0),
    Sketcher.Constraint("Radius", 3, 15.0),
    Sketcher.Constraint("DistanceX", -1, 1, 1, 3, 10.0),
    Sketcher.Constraint("DistanceY", 1, 3, -1, 1, 3.5),
])
pad7 = body.newObject("PartDesign::Pad", "Pad006")
pad7.Profile = sketch14
pad7.Length = 4
pad7.Reversed = True

# Sketch on XZ plane
sketch15 = body.newObject("Sketcher::SketchObject", "Sketch014")
sketch15.AttachmentSupport = (doc.getObject("XZ_Plane"), [""])
sketch15.MapMode = "FlatFace"
sketch15.AttachmentOffset = App.Placement(V(0, 0, -14.5), App.Rotation())
sketch15.addGeometry([
    Part.LineSegment(V(-16, 8.5, 0), V(-16, -13.5, 0)),  # 0
    Part.LineSegment(V(-16, -13.5, 0), V(10, -13.5, 0)),  # 1
    Part.ArcOfCircle(Part.Circle(V(10, -3.5, 0), V(0, 0, 1), 10), math.radians(-90), math.radians(0)),  # 2
    Part.LineSegment(V(20, -3.5, 0), V(20, 8.5, 0)),  # 3
    Part.LineSegment(V(20, 8.5, 0), V(-16, 8.5, 0)),  # 4
    Part.Circle(V(12.9, -6.4, 0), V(0, 0, 1), 1.5),  # 5
], False)
sketch15.addConstraint([
    Sketcher.Constraint("Coincident", 0, 2, 1, 1),
    Sketcher.Constraint("Tangent", 1, 2, 2, 1),
    Sketcher.Constraint("Tangent", 2, 2, 3, 1),
    Sketcher.Constraint("Coincident", 3, 2, 4, 1),
    Sketcher.Constraint("Coincident", 4, 2, 0, 1),
    Sketcher.Constraint("Vertical", 0),
    Sketcher.Constraint("Horizontal", 1),
    Sketcher.Constraint("Vertical", 3),
    Sketcher.Constraint("Horizontal", 4),
    Sketcher.Constraint("Radius", 2, 10.0),
    Sketcher.Constraint("Diameter", 5, 3.02),
    Sketcher.Constraint("DistanceX", 1, 1, 1, 2, 26.0),
    Sketcher.Constraint("DistanceY", 0, 2, 0, 1, 22.0),
    Sketcher.Constraint("DistanceX", -1, 1, 2, 3, 10.0),
    Sketcher.Constraint("DistanceY", 2, 3, -1, 1, 3.5),
    Sketcher.Constraint("DistanceX", -1, 1, 5, 3, 12.928932),
    Sketcher.Constraint("DistanceY", 5, 3, -1, 1, 6.428932),
])
pad8 = body.newObject("PartDesign::Pad", "Pad007")
pad8.Profile = sketch15
pad8.Length = 1

# Sketch on XZ plane
sketch16 = body.newObject("Sketcher::SketchObject", "Sketch015")
sketch16.AttachmentSupport = (doc.getObject("XZ_Plane"), [""])
sketch16.MapMode = "FlatFace"
sketch16.AttachmentOffset = App.Placement(V(0, 0, -15.5), App.Rotation())
sketch16.addGeometry(Part.Circle(V(12.9, -6.4, 0), V(0, 0, 1), 3), False)
sketch16.addConstraint([
    Sketcher.Constraint("Diameter", 0, 6.0),
    Sketcher.Constraint("DistanceX", -1, 1, 0, 3, 12.928932),
    Sketcher.Constraint("DistanceY", 0, 3, -1, 1, 6.428932),
])
pocket8 = body.newObject("PartDesign::Pocket", "Pocket007")
pocket8.Profile = sketch16
pocket8.Length = 2
pocket8.Reversed = True

# Sketch on XY plane
sketch17 = body.newObject("Sketcher::SketchObject", "Sketch016")
sketch17.AttachmentSupport = (doc.getObject("XY_Plane"), [""])
sketch17.MapMode = "FlatFace"
sketch17.AttachmentOffset = App.Placement(V(0, 0, 13.5), App.Rotation())
sketch17.addGeometry([
    Part.ArcOfCircle(Part.Circle(V(-7, 25, 0), V(0, 0, 1), 3), math.radians(0), math.radians(90)),
    Part.ArcOfCircle(Part.Circle(V(-7, 25, 0), V(0, 0, 1), 3), math.radians(90), math.radians(270)),
    Part.ArcOfCircle(Part.Circle(V(-7, 25, 0), V(0, 0, 1), 3), math.radians(-90), math.radians(0)),
], False)
sketch17.addConstraint([
    Sketcher.Constraint("Tangent", 0, 2, 1, 1),
    Sketcher.Constraint("Tangent", 1, 2, 2, 1),
    Sketcher.Constraint("Tangent", 2, 2, 0, 1),
    Sketcher.Constraint("Horizontal", 1, 3, 2, 2),
    Sketcher.Constraint("Vertical", 2, 3, 0, 2),
    Sketcher.Constraint("Vertical", 0, 2, 1, 2),
    Sketcher.Constraint("Radius", 0, 3.05),
    Sketcher.Constraint("DistanceX", 0, 3, -1, 1, 7.0),
    Sketcher.Constraint("DistanceY", -1, 1, 0, 3, 25.0),
])
pocket9 = body.newObject("PartDesign::Pocket", "Pocket008")
pocket9.Profile = sketch17
pocket9.Length = 100

# Sketch on XY plane
sketch18 = body.newObject("Sketcher::SketchObject", "Sketch017")
sketch18.AttachmentSupport = (doc.getObject("XY_Plane"), [""])
sketch18.MapMode = "FlatFace"
sketch18.AttachmentOffset = App.Placement(V(0, 0, 13.5), App.Rotation())
sketch18.addGeometry(Part.Circle(V(-7, 33, 0), V(0, 0, 1), 3), False)
sketch18.addConstraint([
    Sketcher.Constraint("Diameter", 0, 6.1),
    Sketcher.Constraint("DistanceX", 0, 3, -1, 1, 7.0),
    Sketcher.Constraint("DistanceY", -1, 1, 0, 3, 33.0),
])
pad9 = body.newObject("PartDesign::Pad", "Pad008")
pad9.Profile = sketch18
pad9.Length = 27
pad9.Reversed = True

# Sketch on XY plane
sketch19 = body.newObject("Sketcher::SketchObject", "Sketch018")
sketch19.AttachmentSupport = (doc.getObject("XY_Plane"), [""])
sketch19.MapMode = "FlatFace"
sketch19.AttachmentOffset = App.Placement(V(0, 0, 13.5), App.Rotation())
sketch19.addGeometry(Part.Circle(V(-7, 25, 0), V(0, 0, 1), 3.1), False)
sketch19.addConstraint([
    Sketcher.Constraint("Diameter", 0, 6.2),
    Sketcher.Constraint("DistanceX", 0, 3, -1, 1, 7.0),
    Sketcher.Constraint("DistanceY", -1, 1, 0, 3, 25.0),
])
pocket10 = body.newObject("PartDesign::Pocket", "Pocket009")
pocket10.Profile = sketch19
pocket10.Length = 27

# Sketch on XY plane
sketch20 = body.newObject("Sketcher::SketchObject", "Sketch019")
sketch20.AttachmentSupport = (doc.getObject("XY_Plane"), [""])
sketch20.MapMode = "FlatFace"
sketch20.AttachmentOffset = App.Placement(V(0, 0, -13.5), App.Rotation())
sketch20.addGeometry([
    Part.LineSegment(V(20, 40, 0), V(20, 18, 0)),
    Part.LineSegment(V(20, 18, 0), V(0, 18, 0)),
    Part.LineSegment(V(0, 18, 0), V(0, 40, 0)),
    Part.LineSegment(V(0, 40, 0), V(20, 40, 0)),
], False)
sketch20.addConstraint([
    Sketcher.Constraint("Coincident", 0, 2, 1, 1),
    Sketcher.Constraint("Coincident", 1, 2, 2, 1),
    Sketcher.Constraint("Coincident", 2, 2, 3, 1),
    Sketcher.Constraint("Coincident", 3, 2, 0, 1),
    Sketcher.Constraint("Vertical", 0),
    Sketcher.Constraint("Horizontal", 1),
    Sketcher.Constraint("Vertical", 2),
    Sketcher.Constraint("Horizontal", 3),
    Sketcher.Constraint("PointOnObject", 1, 2, -2),
    Sketcher.Constraint("DistanceX", 1, 2, 1, 1, 20.0),
    Sketcher.Constraint("DistanceY", 0, 2, 0, 1, 21.0),
    Sketcher.Constraint("DistanceY", -1, 1, 0, 2, 18.5),
])
pocket11 = body.newObject("PartDesign::Pocket", "Pocket010")
pocket11.Profile = sketch20
pocket11.Length = 20
pocket11.Reversed = True

# Sketch on XZ plane
sketch21 = body.newObject("Sketcher::SketchObject", "Sketch020")
sketch21.AttachmentSupport = (doc.getObject("XZ_Plane"), [""])
sketch21.MapMode = "FlatFace"
sketch21.AttachmentOffset = App.Placement(V(0, 0, -18.5), App.Rotation())
sketch21.addGeometry(Part.Circle(V(12.9, -6.4, 0), V(0, 0, 1), 3), False)
sketch21.addConstraint([
    Sketcher.Constraint("Diameter", 0, 6.0),
    Sketcher.Constraint("DistanceX", -1, 1, 0, 3, 12.928932),
    Sketcher.Constraint("DistanceY", 0, 3, -1, 1, 6.428932),
])
pad10 = body.newObject("PartDesign::Pad", "Pad009")
pad10.Profile = sketch21
pad10.Length = 5

# Sketch on XZ plane
sketch22 = body.newObject("Sketcher::SketchObject", "Sketch021")
sketch22.AttachmentSupport = (doc.getObject("XZ_Plane"), [""])
sketch22.MapMode = "FlatFace"
sketch22.AttachmentOffset = App.Placement(V(0, 0, -44.5), App.Rotation())
sketch22.addGeometry(Part.Circle(V(12.9, -6.4, 0), V(0, 0, 1), 3), False)
sketch22.addConstraint([
    Sketcher.Constraint("Diameter", 0, 6.0),
    Sketcher.Constraint("DistanceX", -1, 1, 0, 3, 12.928932),
    Sketcher.Constraint("DistanceY", 0, 3, -1, 1, 6.428932),
])
pad11 = body.newObject("PartDesign::Pad", "Pad010")
pad11.Profile = sketch22
pad11.Length = 5

# Sketch on XZ plane
sketch23 = body.newObject("Sketcher::SketchObject", "Sketch022")
sketch23.AttachmentSupport = (doc.getObject("XZ_Plane"), [""])
sketch23.MapMode = "FlatFace"
sketch23.AttachmentOffset = App.Placement(V(0, 0, -44.5), App.Rotation())
sketch23.addGeometry(Part.Circle(V(10.5, -4, 0), V(0, 0, 1), 1.5), False)
sketch23.addConstraint([
    Sketcher.Constraint("Diameter", 0, 3.02),
    Sketcher.Constraint("DistanceY", 0, 3, -1, 1, 4.0),
    Sketcher.Constraint("DistanceX", -1, 1, 0, 3, 10.5),
])
pocket12 = body.newObject("PartDesign::Pocket", "Pocket011")
pocket12.Profile = sketch23
pocket12.Length = 100
pocket12.Reversed = True

# Sketch on XZ plane
sketch24 = body.newObject("Sketcher::SketchObject", "Sketch023")
sketch24.AttachmentSupport = (doc.getObject("XZ_Plane"), [""])
sketch24.MapMode = "FlatFace"
sketch24.AttachmentOffset = App.Placement(V(0, 0, -44.5), App.Rotation())
sketch24.addGeometry(Part.Circle(V(10.5, -4, 0), V(0, 0, 1), 3), False)
sketch24.addConstraint([
    Sketcher.Constraint("Diameter", 0, 6.0),
    Sketcher.Constraint("DistanceY", 0, 3, -1, 1, 4.0),
    Sketcher.Constraint("DistanceX", -1, 1, 0, 3, 10.5),
])
pocket13 = body.newObject("PartDesign::Pocket", "Pocket012")
pocket13.Profile = sketch24
pocket13.Length = 2
pocket13.Reversed = True

# Sketch on XZ plane
sketch25 = body.newObject("Sketcher::SketchObject", "Sketch024")
sketch25.AttachmentSupport = (doc.getObject("XZ_Plane"), [""])
sketch25.MapMode = "FlatFace"
sketch25.AttachmentOffset = App.Placement(V(0, 0, -15.5), App.Rotation())
sketch25.addGeometry(Part.Circle(V(10.5, -4, 0), V(0, 0, 1), 3), False)
sketch25.addConstraint([
    Sketcher.Constraint("Diameter", 0, 6.0),
    Sketcher.Constraint("DistanceY", 0, 3, -1, 1, 4.0),
    Sketcher.Constraint("DistanceX", -1, 1, 0, 3, 10.5),
])
pocket14 = body.newObject("PartDesign::Pocket", "Pocket013")
pocket14.Profile = sketch25
pocket14.Length = 2
pocket14.Reversed = True

doc.recompute()
